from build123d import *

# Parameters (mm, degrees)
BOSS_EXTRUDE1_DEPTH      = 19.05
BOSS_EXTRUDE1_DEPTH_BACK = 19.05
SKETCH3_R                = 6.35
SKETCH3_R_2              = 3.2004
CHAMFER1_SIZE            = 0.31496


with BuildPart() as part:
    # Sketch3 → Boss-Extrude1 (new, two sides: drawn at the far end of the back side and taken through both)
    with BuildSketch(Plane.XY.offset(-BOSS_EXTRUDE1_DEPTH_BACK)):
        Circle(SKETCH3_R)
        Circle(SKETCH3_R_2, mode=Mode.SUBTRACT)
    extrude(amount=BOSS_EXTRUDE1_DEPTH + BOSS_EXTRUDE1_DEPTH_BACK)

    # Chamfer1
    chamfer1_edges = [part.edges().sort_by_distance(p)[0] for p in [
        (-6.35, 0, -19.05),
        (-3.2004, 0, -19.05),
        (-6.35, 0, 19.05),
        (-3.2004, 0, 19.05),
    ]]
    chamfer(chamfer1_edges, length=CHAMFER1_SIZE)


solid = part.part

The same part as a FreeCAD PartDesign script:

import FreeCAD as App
import Part
import Sketcher
Q = App.Units.Quantity


def edges_at(feature, points):
    """Names of the edges that pass closest to the given points."""
    edges = feature.Shape.Edges
    near = lambda p: min(range(len(edges)), key=lambda i: edges[i].distToShape(Part.Vertex(*p))[0])
    return sorted({f"Edge{near(p) + 1}" for p in points})

doc = App.newDocument("Part")
body = doc.addObject("PartDesign::Body", "Body")

# Sketch on XY plane
sketch1 = body.newObject("Sketcher::SketchObject", "Sketch")
sketch1.AttachmentSupport = (doc.getObject("XY_Plane"), [""])
sketch1.MapMode = "FlatFace"
sketch1.addGeometry([
    Part.Circle(App.Vector(0, 0, 0), App.Vector(0, 0, 1), 6.3),
    Part.Circle(App.Vector(0, 0, 0), App.Vector(0, 0, 1), 3.2),
], False)
sketch1.addConstraint([
    Sketcher.Constraint("Coincident", 0, 3, -1, 1),
    Sketcher.Constraint("Coincident", 1, 3, -1, 1),
    Sketcher.Constraint("Diameter", 0, Q("0.5 in")),
    Sketcher.Constraint("Diameter", 1, Q("0.252 in")),
])
pad1 = body.newObject("PartDesign::Pad", "Pad")
pad1.Profile = sketch1
pad1.Type = "TwoLengths"
pad1.Length = Q("0.75 in")
pad1.Length2 = Q("0.75 in")
doc.recompute()

chamfer = body.newObject("PartDesign::Chamfer", "Chamfer")
chamfer.Base = (pad1, edges_at(pad1, [
    (-6.35, 0, -19.05),
    (-3.2, 0, -19.05),
    (-6.35, 0, 19.05),
    (-3.2, 0, 19.05),
]))
chamfer.Size = Q("0.0124 in")

doc.recompute()
